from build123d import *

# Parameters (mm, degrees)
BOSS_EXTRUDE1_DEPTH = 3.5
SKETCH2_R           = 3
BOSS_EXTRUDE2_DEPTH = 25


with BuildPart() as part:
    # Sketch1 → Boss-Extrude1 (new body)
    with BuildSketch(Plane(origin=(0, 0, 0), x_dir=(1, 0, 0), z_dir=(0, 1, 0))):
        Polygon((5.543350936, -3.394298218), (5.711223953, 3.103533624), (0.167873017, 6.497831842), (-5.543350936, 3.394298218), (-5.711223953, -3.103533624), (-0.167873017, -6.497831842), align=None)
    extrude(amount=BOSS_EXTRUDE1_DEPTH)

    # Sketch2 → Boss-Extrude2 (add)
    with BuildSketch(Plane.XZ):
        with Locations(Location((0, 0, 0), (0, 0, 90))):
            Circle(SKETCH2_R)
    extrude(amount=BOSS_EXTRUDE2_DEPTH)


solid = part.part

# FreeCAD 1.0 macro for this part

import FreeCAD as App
import Part
import Sketcher

V = App.Vector

doc = App.newDocument("Part")
params = doc.addObject("Spreadsheet::Sheet", "Params")
for row, (alias, value) in enumerate([
    ("sketch1_length", "6.5 mm"),
    ("pad1_length", "3.5 mm"),
    ("sketch2_diameter", "6 mm"),
    ("pad2_length", "25 mm"),
], start=1):
    params.set(f"A{row}", alias)
    params.set(f"B{row}", "=" + value)
    params.setAlias(f"B{row}", alias)

body = doc.addObject("PartDesign::Body", "Body")

sketch1 = doc.addObject("Sketcher::SketchObject", "Sketch")
body.addObject(sketch1)
sketch1.AttachmentSupport = (doc.XZ_Plane, [""])
sketch1.MapMode = "FlatFace"
sketch1.addGeometry([
    Part.LineSegment(V(6, 3, 0), V(6, -3, 0)),
    Part.LineSegment(V(6, -3, 0), V(0, -6, 0)),
    Part.LineSegment(V(0, -6, 0), V(-6, -3, 0)),
    Part.LineSegment(V(-6, -3, 0), V(-6, 3, 0)),
    Part.LineSegment(V(-6, 3, 0), V(0, 6, 0)),
    Part.LineSegment(V(0, 6, 0), V(6, 3, 0)),
], False)
sketch1.addConstraint([
    Sketcher.Constraint("Coincident", 0, 2, 1, 1),
    Sketcher.Constraint("Coincident", 1, 2, 2, 1),
    Sketcher.Constraint("Coincident", 2, 2, 3, 1),
    Sketcher.Constraint("Coincident", 3, 2, 4, 1),
    Sketcher.Constraint("Coincident", 4, 2, 5, 1),
    Sketcher.Constraint("Coincident", 5, 2, 0, 1),
    Sketcher.Constraint("Symmetric", 0, 2, 3, 2, -1, 1),
    Sketcher.Constraint("Symmetric", 1, 2, 4, 2, -1, 1),
    Sketcher.Constraint("Symmetric", 2, 2, 5, 2, -1, 1),
    Sketcher.Constraint("Equal", 0, 1),
    Sketcher.Constraint("Equal", 1, 2),
    Sketcher.Constraint("Distance", 0, 6.5),
    Sketcher.Constraint("DistanceY", 2, 2, -1, 1, 3.394298),
    Sketcher.Constraint("DistanceY", 1, 2, 0, 2, 3.394298),
    Sketcher.Constraint("DistanceX", 2, 2, 5, 2, 11.086702),
])
sketch1.setExpression("Constraints[11]", "Params.sketch1_length")
pad1 = doc.addObject("PartDesign::Pad", "Pad")
body.addObject(pad1)
pad1.Profile = sketch1
pad1.setExpression("Length", "Params.pad1_length")
pad1.Reversed = True

sketch2 = doc.addObject("Sketcher::SketchObject", "Sketch001")
body.addObject(sketch2)
sketch2.AttachmentSupport = (doc.XZ_Plane, [""])
sketch2.MapMode = "FlatFace"
sketch2.addGeometry(Part.Circle(V(0, 0, 0), V(0, 0, 1), 3), False)
sketch2.addConstraint([
    Sketcher.Constraint("Coincident", 0, 3, -1, 1),
    Sketcher.Constraint("Diameter", 0, 6.0),
])
sketch2.setExpression("Constraints[1]", "Params.sketch2_diameter")
pad2 = doc.addObject("PartDesign::Pad", "Pad001")
body.addObject(pad2)
pad2.Profile = sketch2
pad2.setExpression("Length", "Params.pad2_length")

doc.recompute()
